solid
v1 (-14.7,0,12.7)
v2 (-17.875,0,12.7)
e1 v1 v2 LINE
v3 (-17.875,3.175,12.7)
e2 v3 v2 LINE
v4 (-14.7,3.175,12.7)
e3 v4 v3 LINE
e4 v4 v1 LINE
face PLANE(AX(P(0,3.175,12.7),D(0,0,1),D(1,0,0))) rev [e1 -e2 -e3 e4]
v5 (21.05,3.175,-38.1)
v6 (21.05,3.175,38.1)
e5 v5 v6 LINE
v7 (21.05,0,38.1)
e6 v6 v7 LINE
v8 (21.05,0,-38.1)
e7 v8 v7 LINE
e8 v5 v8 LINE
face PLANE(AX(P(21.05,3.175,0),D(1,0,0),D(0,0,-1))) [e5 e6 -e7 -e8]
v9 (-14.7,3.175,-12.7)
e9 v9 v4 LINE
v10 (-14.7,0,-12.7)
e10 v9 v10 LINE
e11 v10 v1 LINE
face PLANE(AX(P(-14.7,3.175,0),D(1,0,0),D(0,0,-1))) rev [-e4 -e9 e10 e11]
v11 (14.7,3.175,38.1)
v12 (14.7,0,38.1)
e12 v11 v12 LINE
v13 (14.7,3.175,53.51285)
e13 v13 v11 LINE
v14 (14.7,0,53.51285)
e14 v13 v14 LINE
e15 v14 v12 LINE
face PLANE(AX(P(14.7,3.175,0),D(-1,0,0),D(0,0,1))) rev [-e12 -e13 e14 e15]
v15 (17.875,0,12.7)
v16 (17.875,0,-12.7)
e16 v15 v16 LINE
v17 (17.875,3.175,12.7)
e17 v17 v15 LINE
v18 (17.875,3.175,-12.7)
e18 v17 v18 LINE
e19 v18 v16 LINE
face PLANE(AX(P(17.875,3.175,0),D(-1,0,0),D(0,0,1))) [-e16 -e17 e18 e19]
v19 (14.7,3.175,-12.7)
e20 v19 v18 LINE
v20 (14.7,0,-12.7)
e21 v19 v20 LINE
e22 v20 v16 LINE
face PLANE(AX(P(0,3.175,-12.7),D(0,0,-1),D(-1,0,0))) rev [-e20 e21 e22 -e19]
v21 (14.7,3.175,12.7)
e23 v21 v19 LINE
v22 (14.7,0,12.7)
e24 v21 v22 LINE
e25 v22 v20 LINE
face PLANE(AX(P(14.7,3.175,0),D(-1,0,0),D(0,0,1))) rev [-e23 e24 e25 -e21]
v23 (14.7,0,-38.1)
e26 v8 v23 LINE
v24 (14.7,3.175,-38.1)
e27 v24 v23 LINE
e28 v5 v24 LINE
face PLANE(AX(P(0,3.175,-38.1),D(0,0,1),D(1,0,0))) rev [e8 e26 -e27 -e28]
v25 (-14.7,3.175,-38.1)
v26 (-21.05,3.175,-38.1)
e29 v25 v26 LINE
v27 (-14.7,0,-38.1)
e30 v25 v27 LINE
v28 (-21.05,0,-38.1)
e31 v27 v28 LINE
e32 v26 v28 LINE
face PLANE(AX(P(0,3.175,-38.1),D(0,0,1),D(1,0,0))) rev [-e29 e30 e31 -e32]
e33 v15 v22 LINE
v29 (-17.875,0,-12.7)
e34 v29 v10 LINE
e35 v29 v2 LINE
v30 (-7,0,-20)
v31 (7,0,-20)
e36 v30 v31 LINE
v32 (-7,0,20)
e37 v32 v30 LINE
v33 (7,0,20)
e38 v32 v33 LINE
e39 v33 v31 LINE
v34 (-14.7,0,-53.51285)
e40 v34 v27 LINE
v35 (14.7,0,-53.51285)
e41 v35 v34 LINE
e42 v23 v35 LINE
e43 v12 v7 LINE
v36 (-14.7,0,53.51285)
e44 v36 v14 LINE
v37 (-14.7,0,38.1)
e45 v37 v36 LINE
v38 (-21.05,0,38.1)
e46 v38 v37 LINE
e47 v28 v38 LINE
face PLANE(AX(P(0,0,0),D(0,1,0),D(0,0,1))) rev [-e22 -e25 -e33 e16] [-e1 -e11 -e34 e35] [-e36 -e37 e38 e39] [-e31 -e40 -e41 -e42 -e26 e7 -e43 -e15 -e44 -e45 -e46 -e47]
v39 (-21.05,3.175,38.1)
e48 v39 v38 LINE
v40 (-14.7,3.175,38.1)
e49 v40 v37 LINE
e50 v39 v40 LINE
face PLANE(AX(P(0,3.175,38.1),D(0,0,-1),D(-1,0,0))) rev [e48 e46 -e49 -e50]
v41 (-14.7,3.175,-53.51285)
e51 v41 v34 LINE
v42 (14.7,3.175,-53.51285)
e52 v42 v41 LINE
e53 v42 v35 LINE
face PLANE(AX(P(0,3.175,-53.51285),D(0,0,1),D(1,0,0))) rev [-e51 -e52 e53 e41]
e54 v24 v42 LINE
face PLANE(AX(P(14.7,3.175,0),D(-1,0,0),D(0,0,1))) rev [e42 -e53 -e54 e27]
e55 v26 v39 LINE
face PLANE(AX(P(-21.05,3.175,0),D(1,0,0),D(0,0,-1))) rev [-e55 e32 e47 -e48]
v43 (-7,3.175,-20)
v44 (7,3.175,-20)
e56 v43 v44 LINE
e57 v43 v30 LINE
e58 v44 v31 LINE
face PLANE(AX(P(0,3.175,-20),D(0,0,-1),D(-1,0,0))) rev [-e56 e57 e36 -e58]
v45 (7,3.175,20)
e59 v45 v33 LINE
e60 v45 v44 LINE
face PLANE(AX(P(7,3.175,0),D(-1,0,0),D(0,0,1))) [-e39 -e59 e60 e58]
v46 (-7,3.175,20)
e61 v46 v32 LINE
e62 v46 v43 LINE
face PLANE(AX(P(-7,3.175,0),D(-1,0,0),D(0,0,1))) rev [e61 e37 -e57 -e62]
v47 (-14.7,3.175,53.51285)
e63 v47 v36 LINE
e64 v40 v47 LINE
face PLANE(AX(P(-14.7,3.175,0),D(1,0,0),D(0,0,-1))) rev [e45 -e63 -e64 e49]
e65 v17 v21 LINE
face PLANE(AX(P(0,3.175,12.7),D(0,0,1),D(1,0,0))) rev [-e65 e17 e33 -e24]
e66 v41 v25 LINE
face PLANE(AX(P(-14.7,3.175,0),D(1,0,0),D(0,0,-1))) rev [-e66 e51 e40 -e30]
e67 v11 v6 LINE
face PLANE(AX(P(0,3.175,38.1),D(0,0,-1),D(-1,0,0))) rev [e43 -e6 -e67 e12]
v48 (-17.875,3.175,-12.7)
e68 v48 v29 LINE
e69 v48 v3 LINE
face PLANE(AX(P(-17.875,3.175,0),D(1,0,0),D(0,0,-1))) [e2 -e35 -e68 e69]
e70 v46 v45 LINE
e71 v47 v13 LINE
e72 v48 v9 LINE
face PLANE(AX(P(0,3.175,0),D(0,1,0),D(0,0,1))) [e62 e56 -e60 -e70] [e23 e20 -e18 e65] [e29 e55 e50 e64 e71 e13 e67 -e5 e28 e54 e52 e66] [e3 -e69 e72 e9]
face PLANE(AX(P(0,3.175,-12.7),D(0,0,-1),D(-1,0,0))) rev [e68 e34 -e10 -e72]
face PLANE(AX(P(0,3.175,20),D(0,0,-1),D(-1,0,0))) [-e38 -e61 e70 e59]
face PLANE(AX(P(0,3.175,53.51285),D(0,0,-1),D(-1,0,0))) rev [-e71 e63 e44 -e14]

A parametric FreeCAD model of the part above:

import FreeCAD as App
import Part
import Sketcher
from FreeCAD import Vector
Q = App.Units.Quantity


def add_polygon(sketch, points):
    """Adds a closed chain of lines whose ends are joined by coincident constraints."""
    first, n = sketch.GeometryCount, len(points)
    for a, b in zip(points, points[1:] + points[:1]):
        sketch.addGeometry(Part.LineSegment(App.Vector(*a, 0), App.Vector(*b, 0)), False)
    for i in range(n):
        sketch.addConstraint(Sketcher.Constraint("Coincident", first + i, 2, first + (i + 1) % n, 1))

doc = App.newDocument("Part")
body = doc.addObject("PartDesign::Body", "Body")

# Sketch on XZ plane
sketch1 = doc.addObject("Sketcher::SketchObject", "Sketch")
body.addObject(sketch1)
sketch1.AttachmentSupport = (doc.XZ_Plane, [""])
sketch1.MapMode = "FlatFace"
add_polygon(sketch1, [(-14.7, 38.1), (-14.7, 53.5), (14.7, 53.5), (14.7, 38.1), (21.1, 38.1), (21.1, -38.1), (14.7, -38.1), (14.7, -53.5), (-14.7, -53.5), (-14.7, -38.1), (-21.1, -38.1), (-21.1, 38.1)])  # lines 0-11
add_polygon(sketch1, [(17.9, 12.7), (14.7, 12.7), (14.7, -12.7), (17.9, -12.7)])  # lines 12-15
add_polygon(sketch1, [(-14.7, 12.7), (-17.9, 12.7), (-17.9, -12.7), (-14.7, -12.7)])  # lines 16-19
add_polygon(sketch1, [(7, 20), (-7, 20), (-7, -20), (7, -20)])  # lines 20-23
sketch1.addConstraint([
    Sketcher.Constraint("Vertical", 0),
    Sketcher.Constraint("Horizontal", 1),
    Sketcher.Constraint("Vertical", 2),
    Sketcher.Constraint("Horizontal", 3),
    Sketcher.Constraint("Vertical", 4),
    Sketcher.Constraint("Horizontal", 5),
    Sketcher.Constraint("Vertical", 6),
    Sketcher.Constraint("Horizontal", 7),
    Sketcher.Constraint("Vertical", 8),
    Sketcher.Constraint("Horizontal", 9),
    Sketcher.Constraint("Vertical", 10),
    Sketcher.Constraint("Horizontal", 11),
    Sketcher.Constraint("Horizontal", 12),
    Sketcher.Constraint("Vertical", 13),
    Sketcher.Constraint("Horizontal", 14),
    Sketcher.Constraint("Vertical", 15),
    Sketcher.Constraint("Horizontal", 16),
    Sketcher.Constraint("Vertical", 17),
    Sketcher.Constraint("Horizontal", 18),
    Sketcher.Constraint("Vertical", 19),
    Sketcher.Constraint("Horizontal", 20),
    Sketcher.Constraint("Vertical", 21),
    Sketcher.Constraint("Horizontal", 22),
    Sketcher.Constraint("Vertical", 23),
    Sketcher.Constraint("Symmetric", 0, 2, 6, 2, -1, 1),
    Sketcher.Constraint("Symmetric", 2, 2, 8, 2, -1, 1),
    Sketcher.Constraint("Symmetric", 4, 2, 10, 2, -1, 1),
    Sketcher.Constraint("Symmetric", 14, 2, 16, 2, -1, 1),
    Sketcher.Constraint("Symmetric", 12, 2, 18, 2, -1, 1),
    Sketcher.Constraint("Symmetric", 20, 2, 22, 2, -1, 1),
    Sketcher.Constraint("Symmetric", 5, 2, 8, 2, -2),
    Sketcher.Constraint("Horizontal", 15, 2, 16, 2),
    Sketcher.Constraint("Vertical", 6, 2, 12, 2),
    Sketcher.Constraint("DistanceY", 4, 2, 4, 1, Q("3 in")),
    Sketcher.Constraint("DistanceY", 13, 2, 13, 1, Q("1 in")),
    Sketcher.Constraint("DistanceX", 3, 1, 3, 2, Q("0.25 in")),
    Sketcher.Constraint("DistanceX", 12, 2, 12, 1, Q("0.125 in")),
    Sketcher.Constraint("DistanceX", 1, 1, 1, 2, 29.4),
    Sketcher.Constraint("DistanceX", 20, 2, 20, 1, 14.0),
    Sketcher.Constraint("DistanceY", 21, 2, 21, 1, 40.0),
    Sketcher.Constraint("DistanceY", 0, 1, 0, 2, 15.41285),
])
pad1 = doc.addObject("PartDesign::Pad", "Pad")
body.addObject(pad1)
pad1.Profile = sketch1
pad1.Length = Q("0.125 in")
pad1.Reversed = True

doc.recompute()
